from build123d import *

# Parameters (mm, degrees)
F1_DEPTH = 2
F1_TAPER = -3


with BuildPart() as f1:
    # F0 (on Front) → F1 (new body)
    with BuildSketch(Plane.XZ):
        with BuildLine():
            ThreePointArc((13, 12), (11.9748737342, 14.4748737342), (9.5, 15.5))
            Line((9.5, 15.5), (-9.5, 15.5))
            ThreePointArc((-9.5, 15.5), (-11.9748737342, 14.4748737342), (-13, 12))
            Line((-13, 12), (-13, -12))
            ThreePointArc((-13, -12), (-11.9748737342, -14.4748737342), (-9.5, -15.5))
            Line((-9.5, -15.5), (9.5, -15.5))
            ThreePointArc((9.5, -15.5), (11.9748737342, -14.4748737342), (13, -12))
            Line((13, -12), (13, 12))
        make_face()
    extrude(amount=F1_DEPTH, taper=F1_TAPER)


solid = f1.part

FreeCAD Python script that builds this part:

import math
import FreeCAD as App
import Part
import Sketcher
from FreeCAD import Vector
Q = App.Units.Quantity

doc = App.newDocument("Part")
body = doc.addObject("PartDesign::Body", "Body")

sketch1 = doc.addObject("Sketcher::SketchObject", "Sketch")
body.addObject(sketch1)
sketch1.AttachmentSupport = (doc.XZ_Plane, [""])
sketch1.MapMode = "FlatFace"
sketch1.addGeometry([
    Part.ArcOfCircle(Part.Circle(Vector(9.5, 12, 0), Vector(0, 0, 1), 3.5), math.radians(0), math.radians(90)),
    Part.LineSegment(Vector(9.5, 15.5, 0), Vector(-9.5, 15.5, 0)),
    Part.ArcOfCircle(Part.Circle(Vector(-9.5, 12, 0), Vector(0, 0, 1), 3.5), math.radians(90), math.radians(180)),
    Part.LineSegment(Vector(-13, 12, 0), Vector(-13, -12, 0)),
    Part.ArcOfCircle(Part.Circle(Vector(-9.5, -12, 0), Vector(0, 0, 1), 3.5), math.radians(180), math.radians(270)),
    Part.LineSegment(Vector(-9.5, -15.5, 0), Vector(9.5, -15.5, 0)),
    Part.ArcOfCircle(Part.Circle(Vector(9.5, -12, 0), Vector(0, 0, 1), 3.5), math.radians(-90), math.radians(0)),
    Part.LineSegment(Vector(13, -12, 0), Vector(13, 12, 0)),
], False)
sketch1.addConstraint([
    Sketcher.Constraint("Tangent", 0, 2, 1, 1),
    Sketcher.Constraint("Tangent", 1, 2, 2, 1),
    Sketcher.Constraint("Tangent", 2, 2, 3, 1),
    Sketcher.Constraint("Tangent", 3, 2, 4, 1),
    Sketcher.Constraint("Tangent", 4, 2, 5, 1),
    Sketcher.Constraint("Tangent", 5, 2, 6, 1),
    Sketcher.Constraint("Tangent", 6, 2, 7, 1),
    Sketcher.Constraint("Tangent", 7, 2, 0, 1),
    Sketcher.Constraint("Horizontal", 1),
    Sketcher.Constraint("Vertical", 3),
    Sketcher.Constraint("Horizontal", 5),
    Sketcher.Constraint("Vertical", 7),
    Sketcher.Constraint("Equal", 0, 2),
    Sketcher.Constraint("Equal", 2, 4),
    Sketcher.Constraint("Equal", 4, 6),
    Sketcher.Constraint("Symmetric", 0, 3, 4, 3, -1, 1),
    Sketcher.Constraint("Radius", 0, Q("3.5 mm")),
    Sketcher.Constraint("DistanceX", 1, 2, 1, 1, Q("19 mm")),
    Sketcher.Constraint("DistanceY", 3, 2, 3, 1, Q("24 mm")),
])
pad1 = doc.addObject("PartDesign::Pad", "Pad")
body.addObject(pad1)
pad1.Profile = sketch1
pad1.Length = 2
pad1.TaperAngle = 3

doc.recompute()
